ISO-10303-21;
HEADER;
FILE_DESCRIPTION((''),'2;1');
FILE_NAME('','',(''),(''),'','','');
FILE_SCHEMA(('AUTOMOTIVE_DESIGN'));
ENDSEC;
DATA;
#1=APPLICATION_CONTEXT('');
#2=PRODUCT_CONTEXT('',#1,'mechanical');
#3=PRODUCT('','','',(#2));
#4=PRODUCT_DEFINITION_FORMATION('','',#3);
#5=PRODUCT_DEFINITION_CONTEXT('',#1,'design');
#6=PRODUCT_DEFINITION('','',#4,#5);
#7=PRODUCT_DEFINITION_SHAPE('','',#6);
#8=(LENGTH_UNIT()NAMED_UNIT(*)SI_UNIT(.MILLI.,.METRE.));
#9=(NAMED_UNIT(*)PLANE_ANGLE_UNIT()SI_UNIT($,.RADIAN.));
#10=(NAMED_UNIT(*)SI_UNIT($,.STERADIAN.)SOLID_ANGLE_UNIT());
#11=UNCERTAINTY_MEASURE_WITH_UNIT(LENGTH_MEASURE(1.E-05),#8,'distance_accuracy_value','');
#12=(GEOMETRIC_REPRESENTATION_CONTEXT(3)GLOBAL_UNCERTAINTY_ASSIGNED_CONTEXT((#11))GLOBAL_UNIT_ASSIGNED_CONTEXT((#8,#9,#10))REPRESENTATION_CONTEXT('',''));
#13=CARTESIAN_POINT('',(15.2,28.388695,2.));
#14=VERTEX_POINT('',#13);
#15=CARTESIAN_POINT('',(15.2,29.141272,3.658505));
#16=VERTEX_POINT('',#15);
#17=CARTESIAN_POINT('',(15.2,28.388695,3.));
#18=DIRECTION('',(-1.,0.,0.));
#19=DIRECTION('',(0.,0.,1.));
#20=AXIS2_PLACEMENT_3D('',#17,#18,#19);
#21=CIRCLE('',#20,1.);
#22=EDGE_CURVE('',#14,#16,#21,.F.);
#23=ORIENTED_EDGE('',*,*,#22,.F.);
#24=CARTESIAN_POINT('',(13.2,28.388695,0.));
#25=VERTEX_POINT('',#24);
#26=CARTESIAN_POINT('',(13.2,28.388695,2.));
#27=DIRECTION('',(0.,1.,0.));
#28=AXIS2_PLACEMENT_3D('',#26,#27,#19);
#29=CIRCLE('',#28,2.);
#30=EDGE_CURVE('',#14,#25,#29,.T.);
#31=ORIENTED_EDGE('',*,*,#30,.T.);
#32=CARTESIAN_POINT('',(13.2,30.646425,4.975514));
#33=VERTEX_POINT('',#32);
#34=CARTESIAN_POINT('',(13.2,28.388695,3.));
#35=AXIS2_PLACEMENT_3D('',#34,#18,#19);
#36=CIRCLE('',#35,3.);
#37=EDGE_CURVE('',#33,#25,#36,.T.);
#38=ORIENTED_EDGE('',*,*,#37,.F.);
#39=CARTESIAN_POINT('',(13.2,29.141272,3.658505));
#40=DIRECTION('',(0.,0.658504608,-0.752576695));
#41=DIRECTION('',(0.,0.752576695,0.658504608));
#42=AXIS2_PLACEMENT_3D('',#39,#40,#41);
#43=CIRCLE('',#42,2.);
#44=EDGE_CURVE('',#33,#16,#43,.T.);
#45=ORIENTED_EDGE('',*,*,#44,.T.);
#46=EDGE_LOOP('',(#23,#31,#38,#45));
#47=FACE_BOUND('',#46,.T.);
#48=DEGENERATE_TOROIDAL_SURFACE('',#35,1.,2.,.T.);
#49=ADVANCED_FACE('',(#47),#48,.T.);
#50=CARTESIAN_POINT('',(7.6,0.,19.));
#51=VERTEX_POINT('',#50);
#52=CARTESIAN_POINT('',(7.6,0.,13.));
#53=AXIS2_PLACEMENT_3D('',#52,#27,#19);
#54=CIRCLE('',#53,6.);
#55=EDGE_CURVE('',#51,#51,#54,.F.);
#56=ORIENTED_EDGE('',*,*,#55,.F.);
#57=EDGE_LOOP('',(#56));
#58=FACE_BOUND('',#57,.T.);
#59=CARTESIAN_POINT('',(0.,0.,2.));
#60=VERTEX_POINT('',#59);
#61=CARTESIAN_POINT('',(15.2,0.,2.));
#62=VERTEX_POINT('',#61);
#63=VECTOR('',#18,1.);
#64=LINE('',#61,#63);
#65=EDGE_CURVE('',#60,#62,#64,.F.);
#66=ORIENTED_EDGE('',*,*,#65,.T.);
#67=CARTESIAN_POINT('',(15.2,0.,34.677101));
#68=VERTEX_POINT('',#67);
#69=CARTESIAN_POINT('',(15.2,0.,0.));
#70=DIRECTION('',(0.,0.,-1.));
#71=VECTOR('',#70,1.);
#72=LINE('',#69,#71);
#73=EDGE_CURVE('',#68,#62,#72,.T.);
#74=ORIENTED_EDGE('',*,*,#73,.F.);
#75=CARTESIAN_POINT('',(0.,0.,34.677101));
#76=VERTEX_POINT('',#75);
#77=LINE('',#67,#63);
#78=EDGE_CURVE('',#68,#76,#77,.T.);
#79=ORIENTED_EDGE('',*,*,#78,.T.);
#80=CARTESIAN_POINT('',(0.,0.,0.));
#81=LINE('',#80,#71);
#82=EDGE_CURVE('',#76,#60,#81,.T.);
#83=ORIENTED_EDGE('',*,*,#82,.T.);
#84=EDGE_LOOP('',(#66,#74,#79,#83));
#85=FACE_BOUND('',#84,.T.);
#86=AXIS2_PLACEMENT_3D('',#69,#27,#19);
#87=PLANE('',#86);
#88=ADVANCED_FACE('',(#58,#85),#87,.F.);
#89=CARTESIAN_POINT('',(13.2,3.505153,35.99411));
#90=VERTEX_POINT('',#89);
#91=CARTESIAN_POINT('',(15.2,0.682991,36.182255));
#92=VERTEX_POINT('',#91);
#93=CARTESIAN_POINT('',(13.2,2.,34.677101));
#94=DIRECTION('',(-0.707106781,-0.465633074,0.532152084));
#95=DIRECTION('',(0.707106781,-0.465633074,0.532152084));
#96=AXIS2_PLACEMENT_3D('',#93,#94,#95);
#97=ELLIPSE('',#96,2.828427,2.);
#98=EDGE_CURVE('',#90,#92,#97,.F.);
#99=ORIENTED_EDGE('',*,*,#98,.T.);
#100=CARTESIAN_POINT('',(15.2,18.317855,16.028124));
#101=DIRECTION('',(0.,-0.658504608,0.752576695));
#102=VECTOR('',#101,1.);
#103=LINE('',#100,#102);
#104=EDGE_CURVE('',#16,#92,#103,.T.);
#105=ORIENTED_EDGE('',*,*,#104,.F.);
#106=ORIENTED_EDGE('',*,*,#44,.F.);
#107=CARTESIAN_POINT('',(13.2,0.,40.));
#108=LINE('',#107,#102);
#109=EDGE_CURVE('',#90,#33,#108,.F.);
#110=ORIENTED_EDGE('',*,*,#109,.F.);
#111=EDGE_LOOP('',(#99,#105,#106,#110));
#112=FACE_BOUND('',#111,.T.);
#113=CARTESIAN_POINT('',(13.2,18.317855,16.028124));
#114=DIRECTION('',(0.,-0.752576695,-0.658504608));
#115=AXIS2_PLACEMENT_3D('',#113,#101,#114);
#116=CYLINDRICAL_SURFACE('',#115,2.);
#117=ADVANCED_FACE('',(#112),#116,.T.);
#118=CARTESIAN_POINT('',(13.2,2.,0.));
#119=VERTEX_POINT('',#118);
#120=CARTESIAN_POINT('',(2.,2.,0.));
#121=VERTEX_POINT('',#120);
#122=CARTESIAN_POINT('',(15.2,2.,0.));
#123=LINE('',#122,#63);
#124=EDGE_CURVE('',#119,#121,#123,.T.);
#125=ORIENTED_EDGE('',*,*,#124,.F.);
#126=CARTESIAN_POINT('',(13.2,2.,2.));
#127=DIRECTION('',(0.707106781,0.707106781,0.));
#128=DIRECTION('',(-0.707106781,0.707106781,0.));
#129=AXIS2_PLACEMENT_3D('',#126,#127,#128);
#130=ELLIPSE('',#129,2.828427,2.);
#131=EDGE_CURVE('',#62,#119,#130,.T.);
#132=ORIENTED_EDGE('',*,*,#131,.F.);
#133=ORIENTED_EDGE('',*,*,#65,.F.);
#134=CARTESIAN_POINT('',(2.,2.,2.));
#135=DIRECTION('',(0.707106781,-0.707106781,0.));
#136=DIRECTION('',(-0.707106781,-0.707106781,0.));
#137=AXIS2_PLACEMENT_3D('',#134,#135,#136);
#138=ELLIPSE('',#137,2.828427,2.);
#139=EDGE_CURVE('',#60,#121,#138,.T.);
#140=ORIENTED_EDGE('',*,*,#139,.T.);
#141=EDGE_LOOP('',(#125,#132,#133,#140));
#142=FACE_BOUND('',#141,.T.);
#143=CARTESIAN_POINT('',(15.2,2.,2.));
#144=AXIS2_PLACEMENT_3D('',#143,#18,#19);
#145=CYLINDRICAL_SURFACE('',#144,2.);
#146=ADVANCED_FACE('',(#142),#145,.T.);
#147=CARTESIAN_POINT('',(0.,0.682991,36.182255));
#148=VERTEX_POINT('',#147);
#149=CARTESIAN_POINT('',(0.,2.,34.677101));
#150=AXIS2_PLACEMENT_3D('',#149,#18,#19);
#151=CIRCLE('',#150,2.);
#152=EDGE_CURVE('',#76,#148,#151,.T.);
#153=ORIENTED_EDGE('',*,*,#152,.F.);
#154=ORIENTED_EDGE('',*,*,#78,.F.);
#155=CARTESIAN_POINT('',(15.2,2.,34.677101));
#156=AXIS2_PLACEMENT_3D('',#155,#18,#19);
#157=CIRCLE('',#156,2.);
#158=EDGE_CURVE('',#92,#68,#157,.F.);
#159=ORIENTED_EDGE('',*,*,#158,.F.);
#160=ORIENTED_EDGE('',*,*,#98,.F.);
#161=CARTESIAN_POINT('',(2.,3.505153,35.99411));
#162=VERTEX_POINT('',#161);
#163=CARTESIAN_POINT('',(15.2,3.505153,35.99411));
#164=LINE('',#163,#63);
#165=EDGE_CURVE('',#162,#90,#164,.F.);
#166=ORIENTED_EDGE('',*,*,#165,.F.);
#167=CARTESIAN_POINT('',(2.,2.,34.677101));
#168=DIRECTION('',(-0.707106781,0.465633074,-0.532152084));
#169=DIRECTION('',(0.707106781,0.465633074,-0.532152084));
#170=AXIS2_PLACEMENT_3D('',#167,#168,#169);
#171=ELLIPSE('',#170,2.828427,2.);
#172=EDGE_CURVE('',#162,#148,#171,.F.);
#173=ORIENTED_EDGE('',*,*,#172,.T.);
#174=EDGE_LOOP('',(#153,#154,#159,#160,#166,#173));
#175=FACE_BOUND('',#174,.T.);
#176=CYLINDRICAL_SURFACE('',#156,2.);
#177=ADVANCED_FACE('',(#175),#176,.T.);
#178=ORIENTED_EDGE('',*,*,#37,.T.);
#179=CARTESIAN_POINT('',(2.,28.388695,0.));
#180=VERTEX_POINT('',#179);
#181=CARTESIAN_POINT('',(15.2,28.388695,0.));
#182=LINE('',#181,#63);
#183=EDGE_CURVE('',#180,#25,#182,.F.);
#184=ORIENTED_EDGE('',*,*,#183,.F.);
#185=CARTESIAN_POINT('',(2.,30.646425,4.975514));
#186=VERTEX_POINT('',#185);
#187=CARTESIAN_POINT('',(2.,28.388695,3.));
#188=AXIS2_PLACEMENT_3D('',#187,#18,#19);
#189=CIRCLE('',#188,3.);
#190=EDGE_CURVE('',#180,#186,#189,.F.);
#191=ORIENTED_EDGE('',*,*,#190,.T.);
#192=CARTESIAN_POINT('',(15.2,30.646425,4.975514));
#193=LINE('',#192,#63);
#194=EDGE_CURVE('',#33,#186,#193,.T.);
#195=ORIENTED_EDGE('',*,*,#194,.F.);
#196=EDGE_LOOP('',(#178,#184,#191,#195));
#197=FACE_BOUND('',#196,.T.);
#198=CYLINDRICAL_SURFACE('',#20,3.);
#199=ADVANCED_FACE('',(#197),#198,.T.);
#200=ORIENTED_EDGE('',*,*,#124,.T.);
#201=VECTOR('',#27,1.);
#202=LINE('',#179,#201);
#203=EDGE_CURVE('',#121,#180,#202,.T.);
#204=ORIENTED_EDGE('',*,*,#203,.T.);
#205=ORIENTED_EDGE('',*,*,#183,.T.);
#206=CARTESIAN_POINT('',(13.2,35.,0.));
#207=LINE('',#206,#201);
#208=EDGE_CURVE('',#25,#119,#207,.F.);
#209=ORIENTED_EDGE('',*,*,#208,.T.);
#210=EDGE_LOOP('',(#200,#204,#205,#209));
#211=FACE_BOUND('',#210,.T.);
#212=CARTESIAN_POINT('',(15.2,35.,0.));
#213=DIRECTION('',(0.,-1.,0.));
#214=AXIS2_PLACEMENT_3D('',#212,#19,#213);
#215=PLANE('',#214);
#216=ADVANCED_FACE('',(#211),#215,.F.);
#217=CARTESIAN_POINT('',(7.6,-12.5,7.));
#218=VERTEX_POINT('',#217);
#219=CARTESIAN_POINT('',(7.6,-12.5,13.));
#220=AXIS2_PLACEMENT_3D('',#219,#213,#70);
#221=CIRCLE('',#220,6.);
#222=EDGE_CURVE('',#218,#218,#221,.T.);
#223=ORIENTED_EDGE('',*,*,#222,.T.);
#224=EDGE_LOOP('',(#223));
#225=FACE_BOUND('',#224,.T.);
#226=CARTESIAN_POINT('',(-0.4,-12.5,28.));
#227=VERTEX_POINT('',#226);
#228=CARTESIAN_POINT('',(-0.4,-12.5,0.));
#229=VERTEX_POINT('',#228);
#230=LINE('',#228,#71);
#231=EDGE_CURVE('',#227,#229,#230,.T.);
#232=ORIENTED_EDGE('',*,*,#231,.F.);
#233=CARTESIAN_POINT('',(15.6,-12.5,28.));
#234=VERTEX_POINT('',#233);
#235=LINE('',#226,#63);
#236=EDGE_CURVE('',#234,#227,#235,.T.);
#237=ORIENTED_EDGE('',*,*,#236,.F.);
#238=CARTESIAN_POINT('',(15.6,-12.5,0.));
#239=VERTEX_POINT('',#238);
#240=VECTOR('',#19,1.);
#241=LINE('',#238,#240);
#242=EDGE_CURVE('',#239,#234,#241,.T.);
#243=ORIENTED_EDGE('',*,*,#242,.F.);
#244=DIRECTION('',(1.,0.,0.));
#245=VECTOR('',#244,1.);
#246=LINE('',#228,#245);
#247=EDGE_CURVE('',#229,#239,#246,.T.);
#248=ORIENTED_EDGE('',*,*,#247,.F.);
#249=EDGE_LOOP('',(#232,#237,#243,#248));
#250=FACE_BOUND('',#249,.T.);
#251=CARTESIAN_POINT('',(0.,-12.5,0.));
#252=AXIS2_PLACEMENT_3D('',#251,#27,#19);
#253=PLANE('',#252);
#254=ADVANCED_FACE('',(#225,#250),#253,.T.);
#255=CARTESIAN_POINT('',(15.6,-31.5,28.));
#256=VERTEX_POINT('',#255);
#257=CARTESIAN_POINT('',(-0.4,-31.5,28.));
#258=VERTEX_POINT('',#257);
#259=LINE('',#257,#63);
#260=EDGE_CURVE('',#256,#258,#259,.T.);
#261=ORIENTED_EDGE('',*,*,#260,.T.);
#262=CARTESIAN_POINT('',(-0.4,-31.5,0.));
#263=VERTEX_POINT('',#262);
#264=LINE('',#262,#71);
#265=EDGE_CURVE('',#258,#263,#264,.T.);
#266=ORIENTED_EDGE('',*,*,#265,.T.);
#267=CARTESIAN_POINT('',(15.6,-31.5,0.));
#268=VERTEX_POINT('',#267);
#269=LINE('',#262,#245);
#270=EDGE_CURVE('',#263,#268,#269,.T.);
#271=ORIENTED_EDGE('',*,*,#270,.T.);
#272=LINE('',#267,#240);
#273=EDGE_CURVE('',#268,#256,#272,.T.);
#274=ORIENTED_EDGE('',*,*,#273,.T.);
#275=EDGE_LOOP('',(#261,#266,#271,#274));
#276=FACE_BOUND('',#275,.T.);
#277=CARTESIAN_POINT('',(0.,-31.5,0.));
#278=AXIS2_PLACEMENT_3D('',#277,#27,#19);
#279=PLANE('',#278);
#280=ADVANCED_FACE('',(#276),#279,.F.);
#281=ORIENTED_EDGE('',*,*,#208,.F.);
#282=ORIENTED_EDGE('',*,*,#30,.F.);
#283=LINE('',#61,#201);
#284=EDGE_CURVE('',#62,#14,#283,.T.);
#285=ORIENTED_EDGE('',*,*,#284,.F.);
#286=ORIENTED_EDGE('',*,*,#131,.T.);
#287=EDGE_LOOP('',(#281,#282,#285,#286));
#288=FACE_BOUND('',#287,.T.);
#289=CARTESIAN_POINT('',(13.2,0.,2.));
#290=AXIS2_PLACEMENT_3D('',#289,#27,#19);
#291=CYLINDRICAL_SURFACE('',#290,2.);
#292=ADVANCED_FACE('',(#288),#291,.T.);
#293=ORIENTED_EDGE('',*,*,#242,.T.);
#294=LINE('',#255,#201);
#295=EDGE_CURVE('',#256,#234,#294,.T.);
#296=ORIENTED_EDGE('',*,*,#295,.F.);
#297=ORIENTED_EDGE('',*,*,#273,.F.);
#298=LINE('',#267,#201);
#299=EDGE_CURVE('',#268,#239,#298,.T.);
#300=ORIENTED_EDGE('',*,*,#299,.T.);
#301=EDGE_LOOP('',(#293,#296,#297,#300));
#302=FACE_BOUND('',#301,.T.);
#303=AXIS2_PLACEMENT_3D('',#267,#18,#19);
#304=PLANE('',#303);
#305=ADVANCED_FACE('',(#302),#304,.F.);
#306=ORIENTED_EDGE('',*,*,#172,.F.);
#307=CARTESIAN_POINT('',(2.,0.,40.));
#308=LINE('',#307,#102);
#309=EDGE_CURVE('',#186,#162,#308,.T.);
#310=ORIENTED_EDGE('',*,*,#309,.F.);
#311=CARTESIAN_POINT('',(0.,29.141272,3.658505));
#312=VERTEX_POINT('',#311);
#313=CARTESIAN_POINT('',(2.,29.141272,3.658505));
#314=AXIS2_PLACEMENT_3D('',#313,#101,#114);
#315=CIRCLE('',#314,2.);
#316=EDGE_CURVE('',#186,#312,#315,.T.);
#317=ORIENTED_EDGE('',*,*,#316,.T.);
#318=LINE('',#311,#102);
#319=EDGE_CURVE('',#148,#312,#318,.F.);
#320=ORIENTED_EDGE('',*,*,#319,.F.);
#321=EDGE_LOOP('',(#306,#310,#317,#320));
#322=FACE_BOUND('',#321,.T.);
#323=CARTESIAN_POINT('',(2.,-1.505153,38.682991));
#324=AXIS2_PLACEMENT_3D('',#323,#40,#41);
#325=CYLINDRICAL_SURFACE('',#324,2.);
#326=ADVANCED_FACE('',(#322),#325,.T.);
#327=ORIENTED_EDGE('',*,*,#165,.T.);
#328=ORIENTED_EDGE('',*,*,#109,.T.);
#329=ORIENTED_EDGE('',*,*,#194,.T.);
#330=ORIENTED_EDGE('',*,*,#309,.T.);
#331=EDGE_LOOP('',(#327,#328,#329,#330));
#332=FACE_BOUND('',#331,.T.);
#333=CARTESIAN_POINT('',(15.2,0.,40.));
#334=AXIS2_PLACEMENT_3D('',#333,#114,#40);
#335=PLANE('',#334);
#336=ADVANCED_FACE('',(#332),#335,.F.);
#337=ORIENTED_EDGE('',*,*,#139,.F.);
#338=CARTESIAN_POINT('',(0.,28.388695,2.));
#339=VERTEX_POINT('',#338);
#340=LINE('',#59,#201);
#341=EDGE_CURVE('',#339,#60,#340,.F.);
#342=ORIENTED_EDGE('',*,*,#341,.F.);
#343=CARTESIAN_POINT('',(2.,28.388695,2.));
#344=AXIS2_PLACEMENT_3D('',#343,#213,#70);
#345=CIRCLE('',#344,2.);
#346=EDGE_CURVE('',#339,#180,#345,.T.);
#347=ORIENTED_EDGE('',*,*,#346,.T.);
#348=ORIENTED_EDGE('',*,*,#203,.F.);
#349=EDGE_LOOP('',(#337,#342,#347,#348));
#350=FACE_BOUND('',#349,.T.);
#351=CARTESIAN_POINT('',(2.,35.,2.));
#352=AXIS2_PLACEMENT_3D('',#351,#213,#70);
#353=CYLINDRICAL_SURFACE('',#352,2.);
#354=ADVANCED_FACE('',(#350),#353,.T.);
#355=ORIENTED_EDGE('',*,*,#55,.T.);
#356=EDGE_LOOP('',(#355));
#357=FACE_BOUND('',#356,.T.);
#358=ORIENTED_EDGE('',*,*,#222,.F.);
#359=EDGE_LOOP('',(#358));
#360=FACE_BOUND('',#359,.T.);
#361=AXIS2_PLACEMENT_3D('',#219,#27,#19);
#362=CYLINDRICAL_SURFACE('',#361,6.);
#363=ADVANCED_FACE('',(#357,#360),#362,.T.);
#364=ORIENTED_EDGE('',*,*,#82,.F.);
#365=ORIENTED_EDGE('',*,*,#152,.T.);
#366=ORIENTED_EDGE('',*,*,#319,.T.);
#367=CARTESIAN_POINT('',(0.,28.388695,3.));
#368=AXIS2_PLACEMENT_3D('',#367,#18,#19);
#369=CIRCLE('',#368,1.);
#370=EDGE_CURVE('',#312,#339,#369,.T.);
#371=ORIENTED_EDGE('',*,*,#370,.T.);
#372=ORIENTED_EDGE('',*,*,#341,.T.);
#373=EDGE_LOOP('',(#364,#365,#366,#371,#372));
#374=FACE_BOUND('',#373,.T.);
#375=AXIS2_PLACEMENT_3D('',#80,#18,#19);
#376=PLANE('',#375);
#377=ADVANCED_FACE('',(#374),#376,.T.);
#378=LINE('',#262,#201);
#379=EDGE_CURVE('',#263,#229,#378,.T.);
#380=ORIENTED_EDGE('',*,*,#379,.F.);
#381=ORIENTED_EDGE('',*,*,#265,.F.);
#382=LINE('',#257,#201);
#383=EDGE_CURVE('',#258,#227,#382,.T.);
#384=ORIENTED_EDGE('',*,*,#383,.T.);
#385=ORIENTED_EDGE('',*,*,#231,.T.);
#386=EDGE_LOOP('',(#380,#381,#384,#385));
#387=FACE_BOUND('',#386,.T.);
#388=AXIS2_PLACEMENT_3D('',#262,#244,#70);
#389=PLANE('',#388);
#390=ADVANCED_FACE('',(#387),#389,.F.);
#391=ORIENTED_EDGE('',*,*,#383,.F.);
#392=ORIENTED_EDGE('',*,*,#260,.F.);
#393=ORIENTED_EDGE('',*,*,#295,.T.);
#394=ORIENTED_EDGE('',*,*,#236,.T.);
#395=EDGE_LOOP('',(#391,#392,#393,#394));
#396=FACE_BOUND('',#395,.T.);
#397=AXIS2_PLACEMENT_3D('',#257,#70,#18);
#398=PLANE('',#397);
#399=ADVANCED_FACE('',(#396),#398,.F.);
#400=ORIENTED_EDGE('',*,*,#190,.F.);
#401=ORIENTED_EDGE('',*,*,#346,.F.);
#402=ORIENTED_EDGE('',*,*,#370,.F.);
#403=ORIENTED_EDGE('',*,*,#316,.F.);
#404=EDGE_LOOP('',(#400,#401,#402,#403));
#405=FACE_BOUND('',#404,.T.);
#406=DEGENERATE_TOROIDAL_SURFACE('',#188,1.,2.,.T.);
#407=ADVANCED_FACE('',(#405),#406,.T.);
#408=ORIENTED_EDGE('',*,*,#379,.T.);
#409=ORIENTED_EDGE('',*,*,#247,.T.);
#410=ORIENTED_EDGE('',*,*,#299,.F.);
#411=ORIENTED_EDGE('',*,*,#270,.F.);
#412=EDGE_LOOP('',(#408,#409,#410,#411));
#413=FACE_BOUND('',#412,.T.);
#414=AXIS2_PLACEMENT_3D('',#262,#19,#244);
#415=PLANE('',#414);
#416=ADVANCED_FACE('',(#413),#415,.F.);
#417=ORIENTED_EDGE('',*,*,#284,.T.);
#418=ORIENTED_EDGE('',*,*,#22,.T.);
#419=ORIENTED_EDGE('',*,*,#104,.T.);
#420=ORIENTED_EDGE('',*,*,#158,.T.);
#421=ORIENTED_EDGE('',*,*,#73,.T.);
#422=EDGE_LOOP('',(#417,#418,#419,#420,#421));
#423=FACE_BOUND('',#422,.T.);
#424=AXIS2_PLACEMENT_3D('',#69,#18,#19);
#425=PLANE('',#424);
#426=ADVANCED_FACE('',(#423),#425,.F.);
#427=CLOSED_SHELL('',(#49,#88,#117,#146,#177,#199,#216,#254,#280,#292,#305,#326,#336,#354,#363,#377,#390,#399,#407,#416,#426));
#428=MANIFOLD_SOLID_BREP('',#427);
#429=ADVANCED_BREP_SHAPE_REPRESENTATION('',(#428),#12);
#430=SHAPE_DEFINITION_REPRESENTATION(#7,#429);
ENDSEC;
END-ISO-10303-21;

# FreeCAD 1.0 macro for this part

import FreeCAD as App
import Part
import Sketcher
from FreeCAD import Vector


def edges_at(feature, points):
    """Names of the edges that pass closest to the given points."""
    edges = feature.Shape.Edges
    near = lambda p: min(range(len(edges)), key=lambda i: edges[i].distToShape(Part.Vertex(*p))[0])
    return sorted({f"Edge{near(p) + 1}" for p in points})


def add_polygon(sketch, points):
    """Adds a closed chain of lines whose ends are joined by coincident constraints."""
    first, n = sketch.GeometryCount, len(points)
    for a, b in zip(points, points[1:] + points[:1]):
        sketch.addGeometry(Part.LineSegment(App.Vector(*a, 0), App.Vector(*b, 0)), False)
    for i in range(n):
        sketch.addConstraint(Sketcher.Constraint("Coincident", first + i, 2, first + (i + 1) % n, 1))

doc = App.newDocument("Part")
body = doc.addObject("PartDesign::Body", "Body")

# Sketch on YZ plane
sketch1 = body.newObject("Sketcher::SketchObject", "Sketch")
sketch1.AttachmentSupport = (doc.getObject("YZ_Plane"), [""])
sketch1.MapMode = "FlatFace"
add_polygon(sketch1, [(0, 40), (0, 0), (35, 0)])  # lines 0-2
sketch1.addConstraint([
    Sketcher.Constraint("Vertical", 0),
    Sketcher.Constraint("Horizontal", 1),
    Sketcher.Constraint("Coincident", 0, 2, -1, 1),
    Sketcher.Constraint("DistanceX", 1, 1, 1, 2, 35.0),
    Sketcher.Constraint("DistanceY", 0, 2, 0, 1, 40.0),
])
pad1 = body.newObject("PartDesign::Pad", "Pad")
pad1.Profile = sketch1
pad1.Length = 15.2

# Sketch on XZ plane
sketch2 = body.newObject("Sketcher::SketchObject", "Sketch001")
sketch2.AttachmentSupport = (doc.getObject("XZ_Plane"), [""])
sketch2.MapMode = "FlatFace"
sketch2.addGeometry(Part.Circle(Vector(7.6, 13, 0), Vector(0, 0, 1), 6), False)
sketch2.addConstraint([
    Sketcher.Constraint("Diameter", 0, 12.0),
    Sketcher.Constraint("DistanceY", -1, 1, 0, 3, 13.0),
    Sketcher.Constraint("DistanceX", -1, 1, 0, 3, 7.6),
])
pad2 = body.newObject("PartDesign::Pad", "Pad001")
pad2.Profile = sketch2
pad2.Length = 12.5

# Sketch on XZ plane
sketch3 = body.newObject("Sketcher::SketchObject", "Sketch002")
sketch3.AttachmentSupport = (doc.getObject("XZ_Plane"), [""])
sketch3.MapMode = "FlatFace"
sketch3.AttachmentOffset = App.Placement(Vector(0, 0, 12.5), App.Rotation())
add_polygon(sketch3, [(-0.4, 28), (-0.4, 0), (15.6, 0), (15.6, 28)])  # lines 0-3
sketch3.addConstraint([
    Sketcher.Constraint("Vertical", 0),
    Sketcher.Constraint("Horizontal", 1),
    Sketcher.Constraint("Vertical", 2),
    Sketcher.Constraint("Horizontal", 3),
    Sketcher.Constraint("PointOnObject", 0, 2, -1),
    Sketcher.Constraint("DistanceX", 1, 1, 1, 2, 16.0),
    Sketcher.Constraint("DistanceY", 0, 2, 0, 1, 28.0),
    Sketcher.Constraint("DistanceX", 0, 2, -1, 1, 0.4),
])
pad3 = body.newObject("PartDesign::Pad", "Pad002")
pad3.Profile = sketch3
pad3.Length = 19
doc.recompute()

fillet = body.newObject("PartDesign::Fillet", "Fillet")
fillet.Base = (pad3, edges_at(pad3, [(7.6, 35, 0)]))
fillet.Radius = 3
doc.recompute()

fillet2 = body.newObject("PartDesign::Fillet", "Fillet001")
fillet2.Base = (fillet, edges_at(fillet, [
    (0, 15.323, 22.488),
    (15.2, 15.323, 22.488),
    (0, 31.121, 1.76),
    (15.2, 31.121, 1.76),
    (15.2, 14.194, 0),
    (0, 14.194, 0),
    (7.6, 0, 0),
    (7.6, 0, 40),
]))
fillet2.Radius = 2

doc.recompute()
